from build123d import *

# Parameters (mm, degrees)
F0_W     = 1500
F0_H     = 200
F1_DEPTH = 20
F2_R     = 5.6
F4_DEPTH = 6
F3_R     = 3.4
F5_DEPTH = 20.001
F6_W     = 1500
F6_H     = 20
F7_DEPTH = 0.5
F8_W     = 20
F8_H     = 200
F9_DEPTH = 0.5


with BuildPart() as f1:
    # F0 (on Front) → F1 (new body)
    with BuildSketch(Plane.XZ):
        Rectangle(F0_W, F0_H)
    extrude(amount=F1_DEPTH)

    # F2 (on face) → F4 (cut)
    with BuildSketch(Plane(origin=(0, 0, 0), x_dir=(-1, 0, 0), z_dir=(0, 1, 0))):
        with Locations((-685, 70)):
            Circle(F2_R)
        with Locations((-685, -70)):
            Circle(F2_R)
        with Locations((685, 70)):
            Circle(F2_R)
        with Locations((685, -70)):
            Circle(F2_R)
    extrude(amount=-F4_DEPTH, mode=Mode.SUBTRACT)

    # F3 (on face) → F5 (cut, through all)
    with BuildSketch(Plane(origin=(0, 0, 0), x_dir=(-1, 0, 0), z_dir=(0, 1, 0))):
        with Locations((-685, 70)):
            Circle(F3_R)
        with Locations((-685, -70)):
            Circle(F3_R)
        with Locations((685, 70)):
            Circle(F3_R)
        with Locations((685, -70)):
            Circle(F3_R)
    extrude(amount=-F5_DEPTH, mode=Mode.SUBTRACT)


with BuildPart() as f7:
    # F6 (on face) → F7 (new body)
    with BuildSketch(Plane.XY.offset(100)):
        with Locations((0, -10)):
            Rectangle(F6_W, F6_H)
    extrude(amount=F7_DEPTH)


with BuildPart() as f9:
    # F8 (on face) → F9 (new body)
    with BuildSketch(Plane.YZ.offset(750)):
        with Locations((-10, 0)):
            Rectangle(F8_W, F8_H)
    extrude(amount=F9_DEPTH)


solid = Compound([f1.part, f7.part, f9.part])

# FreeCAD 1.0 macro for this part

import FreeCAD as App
import Part
import Sketcher


def add_polygon(sketch, points):
    """Adds a closed chain of lines whose ends are joined by coincident constraints."""
    first, n = sketch.GeometryCount, len(points)
    for a, b in zip(points, points[1:] + points[:1]):
        sketch.addGeometry(Part.LineSegment(App.Vector(*a, 0), App.Vector(*b, 0)), False)
    for i in range(n):
        sketch.addConstraint(Sketcher.Constraint("Coincident", first + i, 2, first + (i + 1) % n, 1))

doc = App.newDocument("Part")
params = doc.addObject("Spreadsheet::Sheet", "Params")
for row, (alias, value) in enumerate([
    ("sketch1_width", "1500 mm"),
    ("sketch1_height", "200 mm"),
    ("pad1_length", "20 mm"),
    ("sketch2_diameter", "11.2 mm"),
    ("pocket1_length", "6 mm"),
    ("sketch3_diameter", "6.8 mm"),
    ("sketch4_width", "1500 mm"),
    ("sketch4_height", "20 mm"),
    ("pad2_length", "0.5 mm"),
    ("sketch5_width", "20 mm"),
    ("sketch5_height", "200 mm"),
    ("pad3_length", "0.5 mm"),
], start=1):
    params.set(f"A{row}", alias)
    params.set(f"B{row}", "=" + value)
    params.setAlias(f"B{row}", alias)

body = doc.addObject("PartDesign::Body", "Body")

# Sketch on XZ plane
sketch1 = doc.addObject("Sketcher::SketchObject", "Sketch")
body.addObject(sketch1)
sketch1.AttachmentSupport = (doc.XZ_Plane, [""])
sketch1.MapMode = "FlatFace"
add_polygon(sketch1, [(-750, 100), (-750, -100), (750, -100), (750, 100)])  # lines 0-3
sketch1.addConstraint(Sketcher.Constraint("Vertical", 0))
sketch1.addConstraint(Sketcher.Constraint("Horizontal", 1))
sketch1.addConstraint(Sketcher.Constraint("Vertical", 2))
sketch1.addConstraint(Sketcher.Constraint("Horizontal", 3))
sketch1.addConstraint(Sketcher.Constraint("Symmetric", 0, 2, 2, 2, -1, 1))
sketch1.addConstraint(Sketcher.Constraint("DistanceX", 1, 1, 1, 2, 1500.0))
sketch1.addConstraint(Sketcher.Constraint("DistanceY", 0, 2, 0, 1, 200.0))
sketch1.setExpression("Constraints[9]", "Params.sketch1_width")
sketch1.setExpression("Constraints[10]", "Params.sketch1_height")
pad1 = doc.addObject("PartDesign::Pad", "Pad")
body.addObject(pad1)
pad1.Profile = sketch1
pad1.setExpression("Length", "Params.pad1_length")

# Sketch on XZ plane
sketch2 = doc.addObject("Sketcher::SketchObject", "Sketch001")
body.addObject(sketch2)
sketch2.AttachmentSupport = (doc.XZ_Plane, [""])
sketch2.MapMode = "FlatFace"
sketch2.addGeometry(Part.Circle(App.Vector(685, 70, 0), App.Vector(0, 0, 1), 6), False)
sketch2.addGeometry(Part.Circle(App.Vector(685, -70, 0), App.Vector(0, 0, 1), 6), False)
sketch2.addGeometry(Part.Circle(App.Vector(-685, 70, 0), App.Vector(0, 0, 1), 6), False)
sketch2.addGeometry(Part.Circle(App.Vector(-685, -70, 0), App.Vector(0, 0, 1), 6), False)
sketch2.addConstraint(Sketcher.Constraint("Equal", 0, 1))
sketch2.addConstraint(Sketcher.Constraint("Equal", 1, 2))
sketch2.addConstraint(Sketcher.Constraint("Equal", 2, 3))
sketch2.addConstraint(Sketcher.Constraint("Symmetric", 1, 3, 2, 3, -1, 1))
sketch2.addConstraint(Sketcher.Constraint("Symmetric", 0, 3, 3, 3, -1, 1))
sketch2.addConstraint(Sketcher.Constraint("Symmetric", 0, 3, 2, 3, -2))
sketch2.addConstraint(Sketcher.Constraint("Diameter", 0, 11.2))
sketch2.addConstraint(Sketcher.Constraint("DistanceX", -1, 1, 0, 3, 685.0))
sketch2.addConstraint(Sketcher.Constraint("DistanceY", -1, 1, 0, 3, 70.0))
sketch2.setExpression("Constraints[6]", "Params.sketch2_diameter")
pocket1 = doc.addObject("PartDesign::Pocket", "Pocket")
body.addObject(pocket1)
pocket1.Profile = sketch2
pocket1.setExpression("Length", "Params.pocket1_length")
pocket1.Reversed = True

# Sketch on XZ plane
sketch3 = doc.addObject("Sketcher::SketchObject", "Sketch002")
body.addObject(sketch3)
sketch3.AttachmentSupport = (doc.XZ_Plane, [""])
sketch3.MapMode = "FlatFace"
sketch3.addGeometry(Part.Circle(App.Vector(685, 70, 0), App.Vector(0, 0, 1), 3.4), False)
sketch3.addGeometry(Part.Circle(App.Vector(685, -70, 0), App.Vector(0, 0, 1), 3.4), False)
sketch3.addGeometry(Part.Circle(App.Vector(-685, 70, 0), App.Vector(0, 0, 1), 3.4), False)
sketch3.addGeometry(Part.Circle(App.Vector(-685, -70, 0), App.Vector(0, 0, 1), 3.4), False)
sketch3.addConstraint(Sketcher.Constraint("Equal", 0, 1))
sketch3.addConstraint(Sketcher.Constraint("Equal", 1, 2))
sketch3.addConstraint(Sketcher.Constraint("Equal", 2, 3))
sketch3.addConstraint(Sketcher.Constraint("Symmetric", 1, 3, 2, 3, -1, 1))
sketch3.addConstraint(Sketcher.Constraint("Symmetric", 0, 3, 3, 3, -1, 1))
sketch3.addConstraint(Sketcher.Constraint("Symmetric", 0, 3, 2, 3, -2))
sketch3.addConstraint(Sketcher.Constraint("Diameter", 0, 6.8))
sketch3.addConstraint(Sketcher.Constraint("DistanceX", -1, 1, 0, 3, 685.0))
sketch3.addConstraint(Sketcher.Constraint("DistanceY", -1, 1, 0, 3, 70.0))
sketch3.setExpression("Constraints[6]", "Params.sketch3_diameter")
pocket2 = doc.addObject("PartDesign::Pocket", "Pocket001")
body.addObject(pocket2)
pocket2.Profile = sketch3
pocket2.Type = "ThroughAll"
pocket2.Reversed = True
body2 = doc.addObject("PartDesign::Body", "Body001")

# Sketch on XY plane
sketch4 = doc.addObject("Sketcher::SketchObject", "Sketch003")
body2.addObject(sketch4)
sketch4.AttachmentSupport = (doc.getObject("XY_Plane001"), [""])
sketch4.MapMode = "FlatFace"
sketch4.AttachmentOffset = App.Placement(App.Vector(0, 0, 100), App.Rotation())
add_polygon(sketch4, [(-750, 0), (-750, -20), (750, -20), (750, 0)])  # lines 0-3
sketch4.addConstraint(Sketcher.Constraint("Vertical", 0))
sketch4.addConstraint(Sketcher.Constraint("Horizontal", 1))
sketch4.addConstraint(Sketcher.Constraint("Vertical", 2))
sketch4.addConstraint(Sketcher.Constraint("Horizontal", 3))
sketch4.addConstraint(Sketcher.Constraint("Symmetric", 2, 2, 3, 2, -1, 1))
sketch4.addConstraint(Sketcher.Constraint("DistanceX", 1, 1, 1, 2, 1500.0))
sketch4.addConstraint(Sketcher.Constraint("DistanceY", 0, 2, 0, 1, 20.0))
sketch4.setExpression("Constraints[9]", "Params.sketch4_width")
sketch4.setExpression("Constraints[10]", "Params.sketch4_height")
pad2 = doc.addObject("PartDesign::Pad", "Pad001")
body2.addObject(pad2)
pad2.Profile = sketch4
pad2.setExpression("Length", "Params.pad2_length")
body3 = doc.addObject("PartDesign::Body", "Body002")

# Sketch on YZ plane
sketch5 = doc.addObject("Sketcher::SketchObject", "Sketch004")
body3.addObject(sketch5)
sketch5.AttachmentSupport = (doc.getObject("YZ_Plane002"), [""])
sketch5.MapMode = "FlatFace"
sketch5.AttachmentOffset = App.Placement(App.Vector(0, 0, 750), App.Rotation())
add_polygon(sketch5, [(-20, 100), (-20, -100), (0, -100), (0, 100)])  # lines 0-3
sketch5.addConstraint(Sketcher.Constraint("Vertical", 0))
sketch5.addConstraint(Sketcher.Constraint("Horizontal", 1))
sketch5.addConstraint(Sketcher.Constraint("Vertical", 2))
sketch5.addConstraint(Sketcher.Constraint("Horizontal", 3))
sketch5.addConstraint(Sketcher.Constraint("Symmetric", 1, 2, 2, 2, -1, 1))
sketch5.addConstraint(Sketcher.Constraint("DistanceX", 1, 1, 1, 2, 20.0))
sketch5.addConstraint(Sketcher.Constraint("DistanceY", 0, 2, 0, 1, 200.0))
sketch5.setExpression("Constraints[9]", "Params.sketch5_width")
sketch5.setExpression("Constraints[10]", "Params.sketch5_height")
pad3 = doc.addObject("PartDesign::Pad", "Pad002")
body3.addObject(pad3)
pad3.Profile = sketch5
pad3.setExpression("Length", "Params.pad3_length")

doc.recompute()
